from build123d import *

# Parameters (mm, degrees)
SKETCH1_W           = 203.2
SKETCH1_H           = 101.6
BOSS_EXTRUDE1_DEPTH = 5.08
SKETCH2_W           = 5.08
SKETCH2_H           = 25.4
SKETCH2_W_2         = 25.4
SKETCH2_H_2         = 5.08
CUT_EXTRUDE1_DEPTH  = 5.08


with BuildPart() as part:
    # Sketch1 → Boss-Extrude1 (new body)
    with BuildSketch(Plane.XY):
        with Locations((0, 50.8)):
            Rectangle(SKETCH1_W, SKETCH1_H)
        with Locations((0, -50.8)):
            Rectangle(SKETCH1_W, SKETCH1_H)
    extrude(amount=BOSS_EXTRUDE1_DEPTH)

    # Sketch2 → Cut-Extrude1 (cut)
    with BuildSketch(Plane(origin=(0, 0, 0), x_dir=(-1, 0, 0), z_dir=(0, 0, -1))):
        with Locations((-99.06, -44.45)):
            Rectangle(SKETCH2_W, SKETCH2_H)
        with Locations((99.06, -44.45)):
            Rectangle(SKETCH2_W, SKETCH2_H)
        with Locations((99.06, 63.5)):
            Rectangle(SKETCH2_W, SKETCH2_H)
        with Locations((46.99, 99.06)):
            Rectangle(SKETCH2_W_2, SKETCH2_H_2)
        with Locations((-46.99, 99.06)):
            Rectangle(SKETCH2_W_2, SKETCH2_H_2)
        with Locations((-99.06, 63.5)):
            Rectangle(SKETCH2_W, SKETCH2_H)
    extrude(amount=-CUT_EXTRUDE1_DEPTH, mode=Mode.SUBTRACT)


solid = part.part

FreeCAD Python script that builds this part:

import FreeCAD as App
import Part
import Sketcher

V = App.Vector
Q = App.Units.Quantity


def add_polygon(sketch, points):
    """Adds a closed chain of lines whose ends are joined by coincident constraints."""
    first, n = sketch.GeometryCount, len(points)
    for a, b in zip(points, points[1:] + points[:1]):
        sketch.addGeometry(Part.LineSegment(App.Vector(*a, 0), App.Vector(*b, 0)), False)
    for i in range(n):
        sketch.addConstraint(Sketcher.Constraint("Coincident", first + i, 2, first + (i + 1) % n, 1))

doc = App.newDocument("Part")
body = doc.addObject("PartDesign::Body", "Body")

# Sketch on XY plane
sketch1 = body.newObject("Sketcher::SketchObject", "Sketch")
sketch1.AttachmentSupport = (doc.getObject("XY_Plane"), [""])
sketch1.MapMode = "FlatFace"
add_polygon(sketch1, [(-102, 102), (-102, -102), (102, -102), (102, 102)])  # lines 0-3
sketch1.addConstraint(Sketcher.Constraint("Vertical", 0))
sketch1.addConstraint(Sketcher.Constraint("Horizontal", 1))
sketch1.addConstraint(Sketcher.Constraint("Vertical", 2))
sketch1.addConstraint(Sketcher.Constraint("Horizontal", 3))
sketch1.addConstraint(Sketcher.Constraint("Symmetric", 0, 2, 2, 2, -1, 1))
sketch1.addConstraint(Sketcher.Constraint("Equal", 3, 0))
sketch1.addConstraint(Sketcher.Constraint("DistanceX", 1, 1, 1, 2, Q("8 in")))
pad1 = body.newObject("PartDesign::Pad", "Pad")
pad1.Profile = sketch1
pad1.Length = Q("0.2 in")

# Sketch on XY plane
sketch2 = body.newObject("Sketcher::SketchObject", "Sketch001")
sketch2.AttachmentSupport = (doc.getObject("XY_Plane"), [""])
sketch2.MapMode = "FlatFace"
add_polygon(sketch2, [(102, -32), (102, -57), (97, -57), (97, -32)])  # lines 0-3
add_polygon(sketch2, [(-97, -32), (-97, -57), (-102, -57), (-102, -32)])  # lines 4-7
add_polygon(sketch2, [(-97, 76), (-97, 51), (-102, 51), (-102, 76)])  # lines 8-11
add_polygon(sketch2, [(-34, 102), (-34, 97), (-60, 97), (-60, 102)])  # lines 12-15
add_polygon(sketch2, [(60, 102), (60, 97), (34, 97), (34, 102)])  # lines 16-19
add_polygon(sketch2, [(102, 76), (102, 51), (97, 51), (97, 76)])  # lines 20-23
sketch2.addConstraint(Sketcher.Constraint("Vertical", 0))
sketch2.addConstraint(Sketcher.Constraint("Horizontal", 1))
sketch2.addConstraint(Sketcher.Constraint("Vertical", 2))
sketch2.addConstraint(Sketcher.Constraint("Horizontal", 3))
sketch2.addConstraint(Sketcher.Constraint("Vertical", 4))
sketch2.addConstraint(Sketcher.Constraint("Horizontal", 5))
sketch2.addConstraint(Sketcher.Constraint("Vertical", 6))
sketch2.addConstraint(Sketcher.Constraint("Horizontal", 7))
sketch2.addConstraint(Sketcher.Constraint("Vertical", 8))
sketch2.addConstraint(Sketcher.Constraint("Horizontal", 9))
sketch2.addConstraint(Sketcher.Constraint("Vertical", 10))
sketch2.addConstraint(Sketcher.Constraint("Horizontal", 11))
sketch2.addConstraint(Sketcher.Constraint("Vertical", 12))
sketch2.addConstraint(Sketcher.Constraint("Horizontal", 13))
sketch2.addConstraint(Sketcher.Constraint("Vertical", 14))
sketch2.addConstraint(Sketcher.Constraint("Horizontal", 15))
sketch2.addConstraint(Sketcher.Constraint("Vertical", 16))
sketch2.addConstraint(Sketcher.Constraint("Horizontal", 17))
sketch2.addConstraint(Sketcher.Constraint("Vertical", 18))
sketch2.addConstraint(Sketcher.Constraint("Horizontal", 19))
sketch2.addConstraint(Sketcher.Constraint("Vertical", 20))
sketch2.addConstraint(Sketcher.Constraint("Horizontal", 21))
sketch2.addConstraint(Sketcher.Constraint("Vertical", 22))
sketch2.addConstraint(Sketcher.Constraint("Horizontal", 23))
sketch2.addConstraint(Sketcher.Constraint("Symmetric", 1, 2, 4, 2, -2))
sketch2.addConstraint(Sketcher.Constraint("Symmetric", 3, 2, 6, 2, -2))
sketch2.addConstraint(Sketcher.Constraint("Symmetric", 13, 2, 16, 2, -2))
sketch2.addConstraint(Sketcher.Constraint("Symmetric", 15, 2, 18, 2, -2))
sketch2.addConstraint(Sketcher.Constraint("Symmetric", 9, 2, 20, 2, -2))
sketch2.addConstraint(Sketcher.Constraint("Symmetric", 11, 2, 22, 2, -2))
sketch2.addConstraint(Sketcher.Constraint("Vertical", 7, 2, 8, 2))
sketch2.addConstraint(Sketcher.Constraint("Vertical", 6, 2, 9, 2))
sketch2.addConstraint(Sketcher.Constraint("Equal", 19, 0))
sketch2.addConstraint(Sketcher.Constraint("Equal", 6, 8))
sketch2.addConstraint(Sketcher.Constraint("Equal", 23, 12))
sketch2.addConstraint(Sketcher.Constraint("DistanceX", 13, 2, 13, 1, Q("1 in")))
sketch2.addConstraint(Sketcher.Constraint("DistanceX", 1, 2, 1, 1, Q("0.2 in")))
sketch2.addConstraint(Sketcher.Constraint("DistanceX", -1, 1, 0, 2, Q("4 in")))
sketch2.addConstraint(Sketcher.Constraint("DistanceY", -1, 1, 8, 2, Q("2 in")))
sketch2.addConstraint(Sketcher.Constraint("DistanceY", -1, 1, 14, 2, Q("4 in")))
sketch2.addConstraint(Sketcher.Constraint("DistanceX", 12, 2, 16, 2, Q("3.7 in")))
sketch2.addConstraint(Sketcher.Constraint("DistanceY", 0, 2, -1, 1, Q("2.25 in")))
pocket1 = body.newObject("PartDesign::Pocket", "Pocket")
pocket1.Profile = sketch2
pocket1.Length = Q("0.2 in")
pocket1.Reversed = True

doc.recompute()
